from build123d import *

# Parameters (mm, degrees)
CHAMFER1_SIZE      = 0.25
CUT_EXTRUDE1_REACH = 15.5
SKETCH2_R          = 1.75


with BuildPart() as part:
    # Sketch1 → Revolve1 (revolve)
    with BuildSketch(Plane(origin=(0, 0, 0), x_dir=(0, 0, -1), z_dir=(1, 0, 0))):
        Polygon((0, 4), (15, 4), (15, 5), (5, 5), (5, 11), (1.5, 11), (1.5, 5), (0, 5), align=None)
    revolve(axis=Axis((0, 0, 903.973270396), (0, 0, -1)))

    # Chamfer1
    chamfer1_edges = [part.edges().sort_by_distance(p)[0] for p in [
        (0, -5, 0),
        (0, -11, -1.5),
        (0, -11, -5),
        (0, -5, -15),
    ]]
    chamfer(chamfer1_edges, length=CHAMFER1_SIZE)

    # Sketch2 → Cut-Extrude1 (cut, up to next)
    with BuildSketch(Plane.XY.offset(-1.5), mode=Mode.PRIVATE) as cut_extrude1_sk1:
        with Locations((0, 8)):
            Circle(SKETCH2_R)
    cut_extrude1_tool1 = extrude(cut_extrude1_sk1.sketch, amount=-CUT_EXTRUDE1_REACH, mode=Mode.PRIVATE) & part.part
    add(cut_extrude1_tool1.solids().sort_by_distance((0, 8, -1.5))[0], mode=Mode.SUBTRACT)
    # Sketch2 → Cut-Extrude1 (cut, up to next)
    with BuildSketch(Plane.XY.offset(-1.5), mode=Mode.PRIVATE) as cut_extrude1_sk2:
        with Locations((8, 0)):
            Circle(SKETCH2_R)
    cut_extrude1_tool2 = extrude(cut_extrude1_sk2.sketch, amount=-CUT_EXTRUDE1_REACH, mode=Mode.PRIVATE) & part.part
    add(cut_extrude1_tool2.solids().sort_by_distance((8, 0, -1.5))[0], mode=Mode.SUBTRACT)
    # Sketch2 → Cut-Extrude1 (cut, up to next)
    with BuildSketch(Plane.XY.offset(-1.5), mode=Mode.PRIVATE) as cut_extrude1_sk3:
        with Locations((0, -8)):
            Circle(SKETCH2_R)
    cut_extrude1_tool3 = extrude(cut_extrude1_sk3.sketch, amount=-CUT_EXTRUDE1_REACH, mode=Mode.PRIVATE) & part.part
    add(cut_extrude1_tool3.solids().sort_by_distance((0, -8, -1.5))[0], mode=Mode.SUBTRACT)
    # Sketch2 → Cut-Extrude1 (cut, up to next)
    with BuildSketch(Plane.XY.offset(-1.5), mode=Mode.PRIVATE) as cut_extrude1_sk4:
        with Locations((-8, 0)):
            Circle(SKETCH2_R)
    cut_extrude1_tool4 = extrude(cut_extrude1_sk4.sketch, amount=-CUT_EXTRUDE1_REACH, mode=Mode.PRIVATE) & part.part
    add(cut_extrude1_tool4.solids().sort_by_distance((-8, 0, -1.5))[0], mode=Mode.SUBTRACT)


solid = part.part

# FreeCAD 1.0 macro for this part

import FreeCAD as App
import Part
import Sketcher

V = App.Vector
Q = App.Units.Quantity


def edges_at(feature, points):
    """Names of the edges that pass closest to the given points."""
    edges = feature.Shape.Edges
    near = lambda p: min(range(len(edges)), key=lambda i: edges[i].distToShape(Part.Vertex(*p))[0])
    return sorted({f"Edge{near(p) + 1}" for p in points})


def add_polygon(sketch, points):
    """Adds a closed chain of lines whose ends are joined by coincident constraints."""
    first, n = sketch.GeometryCount, len(points)
    for a, b in zip(points, points[1:] + points[:1]):
        sketch.addGeometry(Part.LineSegment(App.Vector(*a, 0), App.Vector(*b, 0)), False)
    for i in range(n):
        sketch.addConstraint(Sketcher.Constraint("Coincident", first + i, 2, first + (i + 1) % n, 1))

doc = App.newDocument("Part")
body = doc.addObject("PartDesign::Body", "Body")

# Sketch on YZ plane
sketch1 = doc.addObject("Sketcher::SketchObject", "Sketch")
body.addObject(sketch1)
sketch1.AttachmentSupport = (doc.YZ_Plane, [""])
sketch1.MapMode = "FlatFace"
add_polygon(sketch1, [(4, 0), (4, -15), (5, -15), (5, -5), (11, -5), (11, -1.5), (5, -1.5), (5, 0)])  # lines 0-7
sketch1.addConstraint(Sketcher.Constraint("Vertical", 0))
sketch1.addConstraint(Sketcher.Constraint("Horizontal", 1))
sketch1.addConstraint(Sketcher.Constraint("Vertical", 2))
sketch1.addConstraint(Sketcher.Constraint("Horizontal", 3))
sketch1.addConstraint(Sketcher.Constraint("Vertical", 4))
sketch1.addConstraint(Sketcher.Constraint("Horizontal", 5))
sketch1.addConstraint(Sketcher.Constraint("Vertical", 6))
sketch1.addConstraint(Sketcher.Constraint("Horizontal", 7))
sketch1.addConstraint(Sketcher.Constraint("PointOnObject", 6, 2, -1))
sketch1.addConstraint(Sketcher.Constraint("Vertical", 2, 2, 5, 2))
sketch1.addConstraint(Sketcher.Constraint("DistanceX", 1, 1, 1, 2, Q("1 mm")))
sketch1.addConstraint(Sketcher.Constraint("DistanceX", 3, 1, 3, 2, Q("6 mm")))
sketch1.addConstraint(Sketcher.Constraint("DistanceY", 0, 2, 0, 1, Q("15 mm")))
sketch1.addConstraint(Sketcher.Constraint("DistanceY", 2, 1, 2, 2, Q("10 mm")))
sketch1.addConstraint(Sketcher.Constraint("DistanceY", 4, 1, 4, 2, Q("3.5 mm")))
sketch1.addConstraint(Sketcher.Constraint("DistanceX", -1, 1, 0, 2, Q("4 mm")))
revolution = doc.addObject("PartDesign::Revolution", "Revolution")
body.addObject(revolution)
revolution.Profile = sketch1
revolution.ReferenceAxis = (sketch1, ["V_Axis"])
revolution.Angle = 360
doc.recompute()

chamfer = doc.addObject("PartDesign::Chamfer", "Chamfer")
body.addObject(chamfer)
chamfer.Base = (revolution, edges_at(revolution, [
    (0, -5, 0),
    (0, -11, -1.5),
    (0, -11, -5),
    (0, -5, -15),
]))
chamfer.Size = 0.25

# Sketch on XY plane
sketch2 = doc.addObject("Sketcher::SketchObject", "Sketch001")
body.addObject(sketch2)
sketch2.AttachmentSupport = (doc.XY_Plane, [""])
sketch2.MapMode = "FlatFace"
sketch2.AttachmentOffset = App.Placement(V(0, 0, -1.5), App.Rotation())
sketch2.addGeometry(Part.Circle(V(0, 8, 0), V(0, 0, 1), 1.75), False)
sketch2.addConstraint(Sketcher.Constraint("PointOnObject", 0, 3, -2))
sketch2.addConstraint(Sketcher.Constraint("Diameter", 0, Q("3.5 mm")))
sketch2.addConstraint(Sketcher.Constraint("DistanceY", -1, 1, 0, 3, Q("8 mm")))
pocket1 = doc.addObject("PartDesign::Pocket", "Pocket")
body.addObject(pocket1)
pocket1.Profile = sketch2
pocket1.Type = "UpToFirst"

# Sketch on XY plane
sketch3 = doc.addObject("Sketcher::SketchObject", "Sketch002")
body.addObject(sketch3)
sketch3.AttachmentSupport = (doc.XY_Plane, [""])
sketch3.MapMode = "FlatFace"
sketch3.AttachmentOffset = App.Placement(V(0, 0, -1.5), App.Rotation())
sketch3.addGeometry(Part.Circle(V(8, 0, 0), V(0, 0, 1), 1.75), False)
sketch3.addConstraint(Sketcher.Constraint("PointOnObject", 0, 3, -1))
sketch3.addConstraint(Sketcher.Constraint("Diameter", 0, Q("3.5 mm")))
sketch3.addConstraint(Sketcher.Constraint("DistanceX", -1, 1, 0, 3, Q("8 mm")))
pocket2 = doc.addObject("PartDesign::Pocket", "Pocket001")
body.addObject(pocket2)
pocket2.Profile = sketch3
pocket2.Type = "UpToFirst"

# Sketch on XY plane
sketch4 = doc.addObject("Sketcher::SketchObject", "Sketch003")
body.addObject(sketch4)
sketch4.AttachmentSupport = (doc.XY_Plane, [""])
sketch4.MapMode = "FlatFace"
sketch4.AttachmentOffset = App.Placement(V(0, 0, -1.5), App.Rotation())
sketch4.addGeometry(Part.Circle(V(0, -8, 0), V(0, 0, 1), 1.75), False)
sketch4.addConstraint(Sketcher.Constraint("PointOnObject", 0, 3, -2))
sketch4.addConstraint(Sketcher.Constraint("Diameter", 0, Q("3.5 mm")))
sketch4.addConstraint(Sketcher.Constraint("DistanceY", 0, 3, -1, 1, Q("8 mm")))
pocket3 = doc.addObject("PartDesign::Pocket", "Pocket002")
body.addObject(pocket3)
pocket3.Profile = sketch4
pocket3.Type = "UpToFirst"

# Sketch on XY plane
sketch5 = doc.addObject("Sketcher::SketchObject", "Sketch004")
body.addObject(sketch5)
sketch5.AttachmentSupport = (doc.XY_Plane, [""])
sketch5.MapMode = "FlatFace"
sketch5.AttachmentOffset = App.Placement(V(0, 0, -1.5), App.Rotation())
sketch5.addGeometry(Part.Circle(V(-8, 0, 0), V(0, 0, 1), 1.75), False)
sketch5.addConstraint(Sketcher.Constraint("PointOnObject", 0, 3, -1))
sketch5.addConstraint(Sketcher.Constraint("Diameter", 0, Q("3.5 mm")))
sketch5.addConstraint(Sketcher.Constraint("DistanceX", 0, 3, -1, 1, Q("8 mm")))
pocket4 = doc.addObject("PartDesign::Pocket", "Pocket003")
body.addObject(pocket4)
pocket4.Profile = sketch5
pocket4.Type = "UpToFirst"

doc.recompute()
